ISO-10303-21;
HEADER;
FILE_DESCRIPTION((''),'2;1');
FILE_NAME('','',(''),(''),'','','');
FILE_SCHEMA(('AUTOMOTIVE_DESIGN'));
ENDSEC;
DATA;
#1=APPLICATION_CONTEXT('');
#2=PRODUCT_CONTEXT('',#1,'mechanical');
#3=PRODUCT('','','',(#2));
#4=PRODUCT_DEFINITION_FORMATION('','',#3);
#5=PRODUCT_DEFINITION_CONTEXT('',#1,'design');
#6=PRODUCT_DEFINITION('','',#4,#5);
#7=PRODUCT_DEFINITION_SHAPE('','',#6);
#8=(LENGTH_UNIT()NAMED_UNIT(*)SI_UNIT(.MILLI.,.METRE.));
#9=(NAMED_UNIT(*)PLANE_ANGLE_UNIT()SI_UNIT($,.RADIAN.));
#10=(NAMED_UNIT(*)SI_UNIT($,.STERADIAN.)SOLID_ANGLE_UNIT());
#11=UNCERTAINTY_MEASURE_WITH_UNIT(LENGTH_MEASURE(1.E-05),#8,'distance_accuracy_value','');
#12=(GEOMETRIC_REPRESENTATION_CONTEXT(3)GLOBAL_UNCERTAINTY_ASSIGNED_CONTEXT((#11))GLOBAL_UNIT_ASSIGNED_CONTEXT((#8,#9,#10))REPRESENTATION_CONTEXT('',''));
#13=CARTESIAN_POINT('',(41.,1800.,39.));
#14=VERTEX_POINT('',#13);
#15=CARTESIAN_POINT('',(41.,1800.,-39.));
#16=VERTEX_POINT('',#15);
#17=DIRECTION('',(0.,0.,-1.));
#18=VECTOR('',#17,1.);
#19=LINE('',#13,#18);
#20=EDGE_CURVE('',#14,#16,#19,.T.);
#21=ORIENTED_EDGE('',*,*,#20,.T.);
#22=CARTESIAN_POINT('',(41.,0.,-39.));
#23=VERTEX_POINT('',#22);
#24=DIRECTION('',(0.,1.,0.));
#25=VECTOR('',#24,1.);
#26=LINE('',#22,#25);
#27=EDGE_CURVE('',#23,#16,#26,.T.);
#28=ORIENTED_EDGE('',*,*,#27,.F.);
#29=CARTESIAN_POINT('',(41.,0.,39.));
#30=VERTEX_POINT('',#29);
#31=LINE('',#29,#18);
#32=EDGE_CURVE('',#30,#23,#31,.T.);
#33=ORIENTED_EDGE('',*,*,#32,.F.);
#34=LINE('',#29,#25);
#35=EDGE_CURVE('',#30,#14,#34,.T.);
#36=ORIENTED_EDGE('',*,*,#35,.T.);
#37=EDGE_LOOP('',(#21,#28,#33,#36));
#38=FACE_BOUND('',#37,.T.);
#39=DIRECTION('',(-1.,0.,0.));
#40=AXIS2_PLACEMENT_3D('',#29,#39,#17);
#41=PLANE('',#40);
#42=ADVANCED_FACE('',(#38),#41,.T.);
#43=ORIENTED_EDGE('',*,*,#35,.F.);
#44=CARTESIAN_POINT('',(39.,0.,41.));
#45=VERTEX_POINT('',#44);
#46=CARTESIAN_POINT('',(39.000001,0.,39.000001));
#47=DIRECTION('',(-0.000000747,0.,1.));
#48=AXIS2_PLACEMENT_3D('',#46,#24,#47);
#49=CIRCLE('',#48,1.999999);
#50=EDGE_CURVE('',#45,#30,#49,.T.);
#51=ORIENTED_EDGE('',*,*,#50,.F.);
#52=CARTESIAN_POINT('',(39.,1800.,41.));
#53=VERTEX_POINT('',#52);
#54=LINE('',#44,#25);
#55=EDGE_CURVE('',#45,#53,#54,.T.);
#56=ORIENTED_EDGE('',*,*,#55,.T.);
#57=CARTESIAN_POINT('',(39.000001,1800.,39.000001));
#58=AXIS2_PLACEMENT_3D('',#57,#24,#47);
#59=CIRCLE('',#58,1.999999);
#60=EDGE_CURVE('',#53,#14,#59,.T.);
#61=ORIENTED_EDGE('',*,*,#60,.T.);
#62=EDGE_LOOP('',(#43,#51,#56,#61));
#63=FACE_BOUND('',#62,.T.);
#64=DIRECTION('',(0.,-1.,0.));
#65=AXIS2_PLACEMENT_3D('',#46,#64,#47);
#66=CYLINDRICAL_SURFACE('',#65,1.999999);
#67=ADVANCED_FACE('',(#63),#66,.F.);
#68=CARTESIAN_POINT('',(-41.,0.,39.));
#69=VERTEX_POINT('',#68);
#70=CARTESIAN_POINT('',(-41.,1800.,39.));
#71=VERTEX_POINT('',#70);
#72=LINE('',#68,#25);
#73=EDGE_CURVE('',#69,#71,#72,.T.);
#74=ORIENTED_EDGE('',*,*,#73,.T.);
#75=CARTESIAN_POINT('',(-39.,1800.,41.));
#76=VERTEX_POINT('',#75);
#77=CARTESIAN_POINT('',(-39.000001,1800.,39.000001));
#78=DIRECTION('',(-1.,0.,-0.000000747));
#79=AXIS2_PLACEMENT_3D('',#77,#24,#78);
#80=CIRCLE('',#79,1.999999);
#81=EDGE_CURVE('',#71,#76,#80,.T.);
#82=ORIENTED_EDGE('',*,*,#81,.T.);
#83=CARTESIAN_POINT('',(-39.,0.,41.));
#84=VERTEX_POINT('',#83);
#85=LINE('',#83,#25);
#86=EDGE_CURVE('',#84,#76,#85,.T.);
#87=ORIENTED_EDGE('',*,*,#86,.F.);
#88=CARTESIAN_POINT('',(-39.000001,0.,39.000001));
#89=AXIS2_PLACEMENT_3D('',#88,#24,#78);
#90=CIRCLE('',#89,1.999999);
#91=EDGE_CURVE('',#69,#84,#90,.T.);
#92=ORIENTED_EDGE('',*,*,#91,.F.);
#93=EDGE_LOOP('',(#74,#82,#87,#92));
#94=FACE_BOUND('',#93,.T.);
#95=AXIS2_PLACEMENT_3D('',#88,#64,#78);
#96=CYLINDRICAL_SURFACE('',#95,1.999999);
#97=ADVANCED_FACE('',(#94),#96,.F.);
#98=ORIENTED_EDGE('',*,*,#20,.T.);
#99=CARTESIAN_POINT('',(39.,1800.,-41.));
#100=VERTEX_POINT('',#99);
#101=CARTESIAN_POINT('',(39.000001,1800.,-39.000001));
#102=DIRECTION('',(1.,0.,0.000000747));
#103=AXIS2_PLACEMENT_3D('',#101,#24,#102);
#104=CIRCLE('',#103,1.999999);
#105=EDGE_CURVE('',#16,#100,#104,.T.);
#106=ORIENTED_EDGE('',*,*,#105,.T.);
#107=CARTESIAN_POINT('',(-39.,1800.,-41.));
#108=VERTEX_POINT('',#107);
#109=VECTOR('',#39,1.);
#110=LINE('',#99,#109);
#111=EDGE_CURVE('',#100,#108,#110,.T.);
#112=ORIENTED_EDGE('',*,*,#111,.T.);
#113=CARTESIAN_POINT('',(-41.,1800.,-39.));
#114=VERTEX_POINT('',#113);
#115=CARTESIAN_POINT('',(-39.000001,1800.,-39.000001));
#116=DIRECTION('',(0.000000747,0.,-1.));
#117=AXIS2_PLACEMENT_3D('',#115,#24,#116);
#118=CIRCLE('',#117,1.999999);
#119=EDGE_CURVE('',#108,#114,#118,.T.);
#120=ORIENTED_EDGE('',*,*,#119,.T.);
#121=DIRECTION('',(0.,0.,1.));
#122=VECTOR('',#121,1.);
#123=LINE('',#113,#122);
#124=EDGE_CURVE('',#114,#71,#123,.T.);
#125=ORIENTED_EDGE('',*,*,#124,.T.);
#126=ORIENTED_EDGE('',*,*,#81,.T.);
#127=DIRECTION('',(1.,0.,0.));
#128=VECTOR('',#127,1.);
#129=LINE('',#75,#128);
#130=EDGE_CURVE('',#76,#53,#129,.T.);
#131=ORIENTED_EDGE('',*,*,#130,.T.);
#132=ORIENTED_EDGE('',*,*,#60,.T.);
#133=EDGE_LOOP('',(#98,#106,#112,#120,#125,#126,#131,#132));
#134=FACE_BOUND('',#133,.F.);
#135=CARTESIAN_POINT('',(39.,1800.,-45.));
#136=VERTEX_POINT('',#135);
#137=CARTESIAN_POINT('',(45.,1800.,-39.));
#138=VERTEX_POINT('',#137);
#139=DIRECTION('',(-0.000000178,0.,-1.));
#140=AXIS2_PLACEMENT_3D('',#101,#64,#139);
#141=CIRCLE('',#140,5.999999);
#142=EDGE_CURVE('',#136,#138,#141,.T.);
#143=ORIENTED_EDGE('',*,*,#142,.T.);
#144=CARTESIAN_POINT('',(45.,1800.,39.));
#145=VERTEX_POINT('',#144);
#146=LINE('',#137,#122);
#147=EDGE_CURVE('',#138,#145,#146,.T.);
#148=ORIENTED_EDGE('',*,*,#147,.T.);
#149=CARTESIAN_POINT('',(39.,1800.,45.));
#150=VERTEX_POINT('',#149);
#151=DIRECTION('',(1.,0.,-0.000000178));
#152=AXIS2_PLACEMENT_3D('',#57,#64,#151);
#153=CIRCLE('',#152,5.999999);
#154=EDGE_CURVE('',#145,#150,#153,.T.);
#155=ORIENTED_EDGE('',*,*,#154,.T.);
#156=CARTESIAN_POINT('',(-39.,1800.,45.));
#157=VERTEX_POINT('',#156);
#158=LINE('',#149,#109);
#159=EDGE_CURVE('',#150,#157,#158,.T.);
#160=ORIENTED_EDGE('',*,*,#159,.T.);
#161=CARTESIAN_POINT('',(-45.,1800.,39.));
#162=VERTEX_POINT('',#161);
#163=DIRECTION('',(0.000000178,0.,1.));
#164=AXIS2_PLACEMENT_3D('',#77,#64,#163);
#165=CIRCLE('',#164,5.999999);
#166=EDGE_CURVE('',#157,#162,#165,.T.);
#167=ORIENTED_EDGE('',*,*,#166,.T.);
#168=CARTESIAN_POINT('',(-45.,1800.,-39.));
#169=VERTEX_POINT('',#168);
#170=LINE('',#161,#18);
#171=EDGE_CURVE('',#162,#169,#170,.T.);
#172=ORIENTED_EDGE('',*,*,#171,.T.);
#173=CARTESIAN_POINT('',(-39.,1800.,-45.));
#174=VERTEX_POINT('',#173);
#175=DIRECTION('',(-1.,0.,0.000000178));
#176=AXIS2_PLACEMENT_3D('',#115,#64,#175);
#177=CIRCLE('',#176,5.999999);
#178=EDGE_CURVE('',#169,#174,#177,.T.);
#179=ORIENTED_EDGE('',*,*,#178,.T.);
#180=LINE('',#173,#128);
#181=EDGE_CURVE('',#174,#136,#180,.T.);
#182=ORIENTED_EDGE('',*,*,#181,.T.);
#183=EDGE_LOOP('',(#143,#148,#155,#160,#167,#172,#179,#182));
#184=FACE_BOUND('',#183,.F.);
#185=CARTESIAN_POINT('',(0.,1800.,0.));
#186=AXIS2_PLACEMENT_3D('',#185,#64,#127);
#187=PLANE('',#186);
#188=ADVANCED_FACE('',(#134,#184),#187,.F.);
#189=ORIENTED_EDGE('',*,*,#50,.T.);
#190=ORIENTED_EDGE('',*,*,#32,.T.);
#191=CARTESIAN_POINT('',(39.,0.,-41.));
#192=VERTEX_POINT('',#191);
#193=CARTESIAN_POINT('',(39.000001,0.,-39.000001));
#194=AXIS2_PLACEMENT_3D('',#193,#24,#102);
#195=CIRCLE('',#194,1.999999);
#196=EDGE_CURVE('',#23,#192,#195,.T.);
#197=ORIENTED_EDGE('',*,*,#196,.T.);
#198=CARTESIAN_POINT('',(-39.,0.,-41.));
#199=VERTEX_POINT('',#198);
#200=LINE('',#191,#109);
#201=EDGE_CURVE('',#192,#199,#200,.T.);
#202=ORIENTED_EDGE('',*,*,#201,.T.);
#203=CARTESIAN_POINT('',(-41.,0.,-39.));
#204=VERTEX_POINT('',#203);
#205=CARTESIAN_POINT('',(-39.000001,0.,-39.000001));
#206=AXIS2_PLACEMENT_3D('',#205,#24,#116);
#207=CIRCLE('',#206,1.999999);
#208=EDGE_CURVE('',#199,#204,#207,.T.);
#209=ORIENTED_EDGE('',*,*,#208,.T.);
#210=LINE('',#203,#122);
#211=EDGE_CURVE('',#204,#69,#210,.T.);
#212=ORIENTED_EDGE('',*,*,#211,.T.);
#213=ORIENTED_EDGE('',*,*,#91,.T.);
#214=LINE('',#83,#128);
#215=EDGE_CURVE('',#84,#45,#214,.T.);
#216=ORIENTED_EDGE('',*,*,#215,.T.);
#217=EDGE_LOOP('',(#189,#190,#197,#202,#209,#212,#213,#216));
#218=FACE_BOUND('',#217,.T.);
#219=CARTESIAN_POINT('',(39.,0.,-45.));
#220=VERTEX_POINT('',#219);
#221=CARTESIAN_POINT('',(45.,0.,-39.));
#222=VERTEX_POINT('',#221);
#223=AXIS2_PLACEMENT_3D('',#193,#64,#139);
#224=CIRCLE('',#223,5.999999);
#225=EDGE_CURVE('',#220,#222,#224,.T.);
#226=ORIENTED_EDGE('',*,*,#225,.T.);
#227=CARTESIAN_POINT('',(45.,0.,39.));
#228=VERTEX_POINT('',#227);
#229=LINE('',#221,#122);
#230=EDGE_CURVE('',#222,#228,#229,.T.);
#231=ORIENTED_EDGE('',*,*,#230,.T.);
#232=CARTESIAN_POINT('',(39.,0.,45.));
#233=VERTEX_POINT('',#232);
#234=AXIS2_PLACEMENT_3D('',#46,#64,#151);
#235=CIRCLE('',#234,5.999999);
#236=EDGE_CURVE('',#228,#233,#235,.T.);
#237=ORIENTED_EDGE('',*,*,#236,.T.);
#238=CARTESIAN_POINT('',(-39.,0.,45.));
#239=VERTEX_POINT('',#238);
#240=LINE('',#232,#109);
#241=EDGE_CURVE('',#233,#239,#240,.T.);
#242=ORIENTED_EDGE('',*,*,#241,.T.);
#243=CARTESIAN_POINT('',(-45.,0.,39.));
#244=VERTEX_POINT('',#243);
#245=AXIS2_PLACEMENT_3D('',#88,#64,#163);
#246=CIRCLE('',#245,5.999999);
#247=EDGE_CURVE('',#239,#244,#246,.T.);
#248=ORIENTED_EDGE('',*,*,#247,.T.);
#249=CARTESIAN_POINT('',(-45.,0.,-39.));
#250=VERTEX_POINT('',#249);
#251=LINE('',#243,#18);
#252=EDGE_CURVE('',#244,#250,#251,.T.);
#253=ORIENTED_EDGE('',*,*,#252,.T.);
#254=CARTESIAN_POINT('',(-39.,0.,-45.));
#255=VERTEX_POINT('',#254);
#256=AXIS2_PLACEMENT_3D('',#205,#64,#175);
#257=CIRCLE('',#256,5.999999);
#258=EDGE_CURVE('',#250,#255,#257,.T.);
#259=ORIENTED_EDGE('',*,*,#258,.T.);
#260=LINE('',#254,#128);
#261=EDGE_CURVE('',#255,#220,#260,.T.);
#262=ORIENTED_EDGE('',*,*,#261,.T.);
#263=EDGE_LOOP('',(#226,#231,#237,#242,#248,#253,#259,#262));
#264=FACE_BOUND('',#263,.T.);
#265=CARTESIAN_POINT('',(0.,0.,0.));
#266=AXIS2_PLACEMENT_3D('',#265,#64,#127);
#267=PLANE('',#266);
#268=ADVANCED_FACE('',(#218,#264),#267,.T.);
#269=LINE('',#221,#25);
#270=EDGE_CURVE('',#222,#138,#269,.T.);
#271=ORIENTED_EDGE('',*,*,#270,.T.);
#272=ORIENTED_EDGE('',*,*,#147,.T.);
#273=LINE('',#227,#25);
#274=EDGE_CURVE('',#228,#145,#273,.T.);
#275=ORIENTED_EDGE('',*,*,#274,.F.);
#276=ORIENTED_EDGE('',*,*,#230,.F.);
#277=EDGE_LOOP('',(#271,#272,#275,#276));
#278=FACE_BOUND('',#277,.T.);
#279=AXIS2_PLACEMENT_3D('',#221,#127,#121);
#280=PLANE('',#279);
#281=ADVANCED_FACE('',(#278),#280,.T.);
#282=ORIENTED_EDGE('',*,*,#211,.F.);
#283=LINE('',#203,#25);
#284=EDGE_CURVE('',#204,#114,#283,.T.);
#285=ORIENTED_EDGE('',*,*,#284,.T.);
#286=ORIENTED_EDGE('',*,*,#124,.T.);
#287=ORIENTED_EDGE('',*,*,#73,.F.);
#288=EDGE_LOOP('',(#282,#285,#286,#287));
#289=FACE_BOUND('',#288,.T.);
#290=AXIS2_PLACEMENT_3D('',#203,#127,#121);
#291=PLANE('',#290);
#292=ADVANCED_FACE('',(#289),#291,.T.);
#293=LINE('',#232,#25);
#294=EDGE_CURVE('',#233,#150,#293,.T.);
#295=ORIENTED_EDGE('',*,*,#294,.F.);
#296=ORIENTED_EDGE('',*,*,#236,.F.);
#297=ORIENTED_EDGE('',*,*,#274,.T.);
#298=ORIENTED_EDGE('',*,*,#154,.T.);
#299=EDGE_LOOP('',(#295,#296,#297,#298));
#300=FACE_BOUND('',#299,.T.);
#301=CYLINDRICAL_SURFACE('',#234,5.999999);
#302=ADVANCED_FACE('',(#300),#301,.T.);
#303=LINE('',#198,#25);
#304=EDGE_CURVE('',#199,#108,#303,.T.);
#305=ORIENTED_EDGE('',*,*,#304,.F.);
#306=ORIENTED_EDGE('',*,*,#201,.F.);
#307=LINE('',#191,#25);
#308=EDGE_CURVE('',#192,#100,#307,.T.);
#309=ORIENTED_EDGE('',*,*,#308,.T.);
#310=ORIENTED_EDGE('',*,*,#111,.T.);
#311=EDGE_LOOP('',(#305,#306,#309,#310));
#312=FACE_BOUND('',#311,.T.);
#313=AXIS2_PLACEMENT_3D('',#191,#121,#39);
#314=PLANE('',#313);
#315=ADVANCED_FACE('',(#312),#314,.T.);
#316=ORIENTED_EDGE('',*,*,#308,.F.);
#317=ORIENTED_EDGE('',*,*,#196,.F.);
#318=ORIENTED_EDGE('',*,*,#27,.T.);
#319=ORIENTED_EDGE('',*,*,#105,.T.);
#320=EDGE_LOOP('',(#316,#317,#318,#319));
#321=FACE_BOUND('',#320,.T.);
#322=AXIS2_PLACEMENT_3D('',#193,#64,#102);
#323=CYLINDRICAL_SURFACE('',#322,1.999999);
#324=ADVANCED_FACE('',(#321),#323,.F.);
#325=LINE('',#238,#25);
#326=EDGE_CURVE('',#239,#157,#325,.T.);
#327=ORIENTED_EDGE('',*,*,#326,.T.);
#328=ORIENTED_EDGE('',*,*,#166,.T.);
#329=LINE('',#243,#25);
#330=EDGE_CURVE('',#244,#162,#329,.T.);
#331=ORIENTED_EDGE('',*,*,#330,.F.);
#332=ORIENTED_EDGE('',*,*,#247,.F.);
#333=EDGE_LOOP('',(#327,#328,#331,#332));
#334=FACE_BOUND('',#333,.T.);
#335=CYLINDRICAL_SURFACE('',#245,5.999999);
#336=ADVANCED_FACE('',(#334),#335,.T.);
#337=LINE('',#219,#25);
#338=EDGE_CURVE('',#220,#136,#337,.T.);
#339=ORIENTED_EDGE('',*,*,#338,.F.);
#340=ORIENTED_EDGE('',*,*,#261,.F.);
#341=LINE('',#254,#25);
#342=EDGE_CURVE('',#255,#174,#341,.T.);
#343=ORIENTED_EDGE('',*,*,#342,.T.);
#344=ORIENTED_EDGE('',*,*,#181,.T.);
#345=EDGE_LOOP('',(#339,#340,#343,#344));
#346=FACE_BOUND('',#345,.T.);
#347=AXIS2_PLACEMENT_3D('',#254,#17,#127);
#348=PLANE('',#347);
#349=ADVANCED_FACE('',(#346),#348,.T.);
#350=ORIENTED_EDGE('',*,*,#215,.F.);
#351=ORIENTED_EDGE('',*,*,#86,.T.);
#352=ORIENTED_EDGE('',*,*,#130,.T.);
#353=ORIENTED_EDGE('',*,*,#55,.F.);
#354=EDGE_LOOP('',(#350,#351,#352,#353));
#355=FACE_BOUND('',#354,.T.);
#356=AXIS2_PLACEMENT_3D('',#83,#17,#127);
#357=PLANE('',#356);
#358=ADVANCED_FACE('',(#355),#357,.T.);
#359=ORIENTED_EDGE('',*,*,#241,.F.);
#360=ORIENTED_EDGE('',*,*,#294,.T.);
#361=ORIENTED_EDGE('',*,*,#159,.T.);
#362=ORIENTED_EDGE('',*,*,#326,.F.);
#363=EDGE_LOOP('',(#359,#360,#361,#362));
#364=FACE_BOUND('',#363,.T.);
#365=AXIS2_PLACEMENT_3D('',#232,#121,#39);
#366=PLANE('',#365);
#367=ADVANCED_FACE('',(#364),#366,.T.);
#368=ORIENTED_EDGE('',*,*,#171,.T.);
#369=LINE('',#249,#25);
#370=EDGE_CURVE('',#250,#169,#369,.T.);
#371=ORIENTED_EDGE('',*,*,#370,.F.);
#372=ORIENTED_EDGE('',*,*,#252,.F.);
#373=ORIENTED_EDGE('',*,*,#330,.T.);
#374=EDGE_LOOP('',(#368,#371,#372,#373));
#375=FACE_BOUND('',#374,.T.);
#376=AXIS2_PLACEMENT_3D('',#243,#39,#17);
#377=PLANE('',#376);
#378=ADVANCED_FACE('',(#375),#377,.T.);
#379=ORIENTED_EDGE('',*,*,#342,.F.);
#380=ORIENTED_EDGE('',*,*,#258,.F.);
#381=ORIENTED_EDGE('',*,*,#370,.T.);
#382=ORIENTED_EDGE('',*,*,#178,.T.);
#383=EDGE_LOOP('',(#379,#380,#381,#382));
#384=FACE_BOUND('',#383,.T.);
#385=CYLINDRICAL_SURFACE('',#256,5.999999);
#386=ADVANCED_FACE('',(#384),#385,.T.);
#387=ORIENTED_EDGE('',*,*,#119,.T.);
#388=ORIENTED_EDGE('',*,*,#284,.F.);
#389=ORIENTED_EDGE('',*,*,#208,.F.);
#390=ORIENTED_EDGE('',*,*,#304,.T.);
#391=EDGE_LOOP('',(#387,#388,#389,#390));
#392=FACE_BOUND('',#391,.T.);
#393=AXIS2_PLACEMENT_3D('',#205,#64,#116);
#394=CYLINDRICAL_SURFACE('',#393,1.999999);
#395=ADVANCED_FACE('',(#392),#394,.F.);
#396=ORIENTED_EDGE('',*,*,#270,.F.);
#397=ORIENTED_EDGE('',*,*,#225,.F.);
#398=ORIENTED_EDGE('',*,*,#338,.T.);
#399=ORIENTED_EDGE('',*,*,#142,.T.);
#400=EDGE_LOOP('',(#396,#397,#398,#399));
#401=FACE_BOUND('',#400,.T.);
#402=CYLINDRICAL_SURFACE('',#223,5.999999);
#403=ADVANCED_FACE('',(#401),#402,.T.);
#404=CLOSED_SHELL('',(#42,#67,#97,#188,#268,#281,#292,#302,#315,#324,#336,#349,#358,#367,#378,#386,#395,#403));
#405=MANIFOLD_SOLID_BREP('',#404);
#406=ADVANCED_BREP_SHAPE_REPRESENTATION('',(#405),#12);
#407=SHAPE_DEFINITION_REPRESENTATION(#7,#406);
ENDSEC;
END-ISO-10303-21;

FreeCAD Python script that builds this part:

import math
import FreeCAD as App
import Part
import Sketcher

doc = App.newDocument("Part")
body = doc.addObject("PartDesign::Body", "Body")

# Sketch on XZ plane
sketch1 = body.newObject("Sketcher::SketchObject", "Sketch")
sketch1.AttachmentSupport = (doc.getObject("XZ_Plane"), [""])
sketch1.MapMode = "FlatFace"
sketch1.addGeometry([
    Part.ArcOfCircle(Part.Circle(App.Vector(39.000001, 39.000001, 0), App.Vector(0, 0, 1), 5.999999), math.radians(-0.00001), math.radians(90.00001)),  # 0
    Part.LineSegment(App.Vector(39, 45, 0), App.Vector(-39, 45, 0)),  # 1
    Part.ArcOfCircle(Part.Circle(App.Vector(-39.000001, 39.000001, 0), App.Vector(0, 0, 1), 5.999999), math.radians(89.99999), math.radians(180.00001)),  # 2
    Part.LineSegment(App.Vector(-45, 39, 0), App.Vector(-45, -39, 0)),  # 3
    Part.ArcOfCircle(Part.Circle(App.Vector(-39.000001, -39.000001, 0), App.Vector(0, 0, 1), 5.999999), math.radians(179.99999), math.radians(270.00001)),  # 4
    Part.LineSegment(App.Vector(-39, -45, 0), App.Vector(39, -45, 0)),  # 5
    Part.ArcOfCircle(Part.Circle(App.Vector(39.000001, -39.000001, 0), App.Vector(0, 0, 1), 5.999999), math.radians(-90.00001), math.radians(0.00001)),  # 6
    Part.LineSegment(App.Vector(45, -39, 0), App.Vector(45, 39, 0)),  # 7
    Part.LineSegment(App.Vector(-41, -39, 0), App.Vector(-41, 39, 0)),  # 8
    Part.ArcOfCircle(Part.Circle(App.Vector(-39.000001, 39.000001, 0), App.Vector(0, 0, 1), 1.999999), math.radians(89.999957), math.radians(180.000043)),  # 9
    Part.LineSegment(App.Vector(-39, 41, 0), App.Vector(39, 41, 0)),  # 10
    Part.ArcOfCircle(Part.Circle(App.Vector(39.000001, 39.000001, 0), App.Vector(0, 0, 1), 1.999999), math.radians(-0.000043), math.radians(90.000043)),  # 11
    Part.LineSegment(App.Vector(41, 39, 0), App.Vector(41, -39, 0)),  # 12
    Part.ArcOfCircle(Part.Circle(App.Vector(39.000001, -39.000001, 0), App.Vector(0, 0, 1), 1.999999), math.radians(-90.000043), math.radians(0.000043)),  # 13
    Part.LineSegment(App.Vector(39, -41, 0), App.Vector(-39, -41, 0)),  # 14
    Part.ArcOfCircle(Part.Circle(App.Vector(-39.000001, -39.000001, 0), App.Vector(0, 0, 1), 1.999999), math.radians(179.999957), math.radians(270.000043)),  # 15
], False)
sketch1.addConstraint([
    Sketcher.Constraint("Tangent", 0, 2, 1, 1),
    Sketcher.Constraint("Tangent", 1, 2, 2, 1),
    Sketcher.Constraint("Tangent", 2, 2, 3, 1),
    Sketcher.Constraint("Tangent", 3, 2, 4, 1),
    Sketcher.Constraint("Tangent", 4, 2, 5, 1),
    Sketcher.Constraint("Tangent", 5, 2, 6, 1),
    Sketcher.Constraint("Tangent", 6, 2, 7, 1),
    Sketcher.Constraint("Tangent", 7, 2, 0, 1),
    Sketcher.Constraint("Tangent", 8, 2, 9, 2),
    Sketcher.Constraint("Tangent", 9, 1, 10, 1),
    Sketcher.Constraint("Tangent", 10, 2, 11, 2),
    Sketcher.Constraint("Tangent", 11, 1, 12, 1),
    Sketcher.Constraint("Tangent", 12, 2, 13, 2),
    Sketcher.Constraint("Tangent", 13, 1, 14, 1),
    Sketcher.Constraint("Tangent", 14, 2, 15, 2),
    Sketcher.Constraint("Tangent", 15, 1, 8, 1),
    Sketcher.Constraint("Horizontal", 1),
    Sketcher.Constraint("Vertical", 3),
    Sketcher.Constraint("Horizontal", 5),
    Sketcher.Constraint("Vertical", 7),
    Sketcher.Constraint("Vertical", 8),
    Sketcher.Constraint("Horizontal", 10),
    Sketcher.Constraint("Vertical", 12),
    Sketcher.Constraint("Horizontal", 14),
    Sketcher.Constraint("Coincident", 9, 3, 2, 3),
    Sketcher.Constraint("Coincident", 11, 3, 0, 3),
    Sketcher.Constraint("Coincident", 13, 3, 6, 3),
    Sketcher.Constraint("Equal", 0, 2),
    Sketcher.Constraint("Equal", 2, 4),
    Sketcher.Constraint("Equal", 4, 6),
    Sketcher.Constraint("Equal", 13, 15),
    Sketcher.Constraint("Symmetric", 0, 3, 4, 3, -1, 1),
    Sketcher.Constraint("Equal", 14, 3),
    Sketcher.Constraint("Radius", 0, 5.999999),
    Sketcher.Constraint("Radius", 9, 1.999999),
    Sketcher.Constraint("DistanceX", 1, 2, 1, 1, 78.0),
])
pad1 = body.newObject("PartDesign::Pad", "Pad")
pad1.Profile = sketch1
pad1.Length = 1800
pad1.Reversed = True

doc.recompute()
